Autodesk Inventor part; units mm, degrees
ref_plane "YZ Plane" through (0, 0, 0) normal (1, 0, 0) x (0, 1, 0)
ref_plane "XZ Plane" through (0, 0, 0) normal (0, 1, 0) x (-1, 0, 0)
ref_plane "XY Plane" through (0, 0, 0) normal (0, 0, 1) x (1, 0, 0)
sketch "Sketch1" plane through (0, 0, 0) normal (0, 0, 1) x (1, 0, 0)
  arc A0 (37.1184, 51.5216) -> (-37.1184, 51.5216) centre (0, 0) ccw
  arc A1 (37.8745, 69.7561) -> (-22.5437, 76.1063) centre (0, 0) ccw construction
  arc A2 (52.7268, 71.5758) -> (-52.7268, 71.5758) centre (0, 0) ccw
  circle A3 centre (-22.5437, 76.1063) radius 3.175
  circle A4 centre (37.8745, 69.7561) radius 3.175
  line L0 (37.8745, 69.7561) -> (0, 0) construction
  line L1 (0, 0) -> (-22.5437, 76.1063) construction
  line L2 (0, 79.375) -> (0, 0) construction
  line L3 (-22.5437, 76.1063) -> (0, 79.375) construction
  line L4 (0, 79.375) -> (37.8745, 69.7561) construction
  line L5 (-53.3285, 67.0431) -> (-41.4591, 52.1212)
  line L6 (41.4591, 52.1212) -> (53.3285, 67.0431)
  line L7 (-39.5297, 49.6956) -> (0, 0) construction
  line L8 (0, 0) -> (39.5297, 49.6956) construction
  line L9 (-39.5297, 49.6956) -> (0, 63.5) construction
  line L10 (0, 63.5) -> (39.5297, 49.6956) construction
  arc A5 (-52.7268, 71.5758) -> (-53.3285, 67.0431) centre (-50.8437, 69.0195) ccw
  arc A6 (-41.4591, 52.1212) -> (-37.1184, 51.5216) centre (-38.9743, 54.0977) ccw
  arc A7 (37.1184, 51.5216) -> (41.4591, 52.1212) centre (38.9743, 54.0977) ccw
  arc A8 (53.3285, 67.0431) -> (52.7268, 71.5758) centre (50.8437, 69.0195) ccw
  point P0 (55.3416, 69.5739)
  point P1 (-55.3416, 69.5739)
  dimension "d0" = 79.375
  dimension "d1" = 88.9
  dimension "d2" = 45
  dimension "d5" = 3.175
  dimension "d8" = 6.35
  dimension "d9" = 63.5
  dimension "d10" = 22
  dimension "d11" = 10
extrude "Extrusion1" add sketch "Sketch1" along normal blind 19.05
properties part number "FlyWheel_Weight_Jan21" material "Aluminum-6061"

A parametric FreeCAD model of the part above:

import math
import FreeCAD as App
import Part
import Sketcher
Q = App.Units.Quantity

doc = App.newDocument("Part")
params = doc.addObject("Spreadsheet::Sheet", "Params")
for row, (alias, value) in enumerate([
    ("sketch1_radius", "2.5 in"),
    ("sketch1_radius2", "3.5 in"),
    ("sketch1_diameter", "0.25 in"),
    ("pad1_length", "0.75 in"),
], start=1):
    params.set(f"A{row}", alias)
    params.set(f"B{row}", "=" + value)
    params.setAlias(f"B{row}", alias)

body = doc.addObject("PartDesign::Body", "Body")

sketch1 = body.newObject("Sketcher::SketchObject", "Sketch")
sketch1.AttachmentSupport = (doc.getObject("XY_Plane"), [""])
sketch1.MapMode = "FlatFace"
sketch1.addGeometry([
    Part.ArcOfCircle(Part.Circle(App.Vector(0, 0, 0), App.Vector(0, 0, 1), 63.500007), math.radians(54.229382), math.radians(125.770618)),
    Part.ArcOfCircle(Part.Circle(App.Vector(38.9743, 54.0977, 0), App.Vector(0, 0, 1), 3.175005), math.radians(-125.770114), math.radians(-38.500012)),
    Part.LineSegment(App.Vector(41.4591, 52.1212, 0), App.Vector(53.3285, 67.0431, 0)),
    Part.ArcOfCircle(Part.Circle(App.Vector(50.8437, 69.0195, 0), App.Vector(0, 0, 1), 3.174963), math.radians(-38.498599), math.radians(53.622759)),
    Part.ArcOfCircle(Part.Circle(App.Vector(0, 0, 0), App.Vector(0, 0, 1), 88.900003), math.radians(53.62253), math.radians(126.37747)),
    Part.ArcOfCircle(Part.Circle(App.Vector(-50.8437, 69.0195, 0), App.Vector(0, 0, 1), 3.175017), math.radians(126.377241), math.radians(218.498599)),
    Part.LineSegment(App.Vector(-53.3285, 67.0431, 0), App.Vector(-41.4591, 52.1212, 0)),
    Part.ArcOfCircle(Part.Circle(App.Vector(-38.9743, 54.0977, 0), App.Vector(0, 0, 1), 3.175025), math.radians(-141.499988), math.radians(-54.229886)),
    Part.Circle(App.Vector(37.8745, 69.7561, 0), App.Vector(0, 0, 1), 3.175),
    Part.Circle(App.Vector(-22.5437, 76.1063, 0), App.Vector(0, 0, 1), 3.175),
], False)
sketch1.addConstraint([
    Sketcher.Constraint("Tangent", 0, 1, 1, 1),
    Sketcher.Constraint("Tangent", 1, 2, 2, 1),
    Sketcher.Constraint("Tangent", 2, 2, 3, 1),
    Sketcher.Constraint("Tangent", 3, 2, 4, 1),
    Sketcher.Constraint("Tangent", 4, 2, 5, 1),
    Sketcher.Constraint("Tangent", 5, 2, 6, 1),
    Sketcher.Constraint("Tangent", 6, 2, 7, 1),
    Sketcher.Constraint("Tangent", 7, 2, 0, 2),
    Sketcher.Constraint("Coincident", 0, 3, -1, 1),
    Sketcher.Constraint("Coincident", 4, 3, -1, 1),
    Sketcher.Constraint("Equal", 1, 3),
    Sketcher.Constraint("Equal", 3, 5),
    Sketcher.Constraint("Equal", 5, 7),
    Sketcher.Constraint("Equal", 7, 8),
    Sketcher.Constraint("Equal", 8, 9),
    Sketcher.Constraint("Symmetric", 2, 2, 5, 2, -2),
    Sketcher.Constraint("Radius", 0, Q("2.5 in")),
    Sketcher.Constraint("Radius", 4, Q("3.5 in")),
    Sketcher.Constraint("Diameter", 8, Q("0.25 in")),
    Sketcher.Constraint("DistanceY", 8, 3, 9, 3, Q("0.25 in")),
    Sketcher.Constraint("Angle", 2, Q("51.5 deg")),
    Sketcher.Constraint("DistanceY", 3, 3, 8, 3, Q("0.029 in")),
    Sketcher.Constraint("DistanceX", 5, 2, 9, 3, Q("1.212 in")),
    Sketcher.Constraint("DistanceY", -1, 1, 3, 3, Q("2.7173 in")),
    Sketcher.Constraint("DistanceX", 8, 3, 3, 3, Q("0.5106 in")),
])
sketch1.setExpression("Constraints[16]", "Params.sketch1_radius")
sketch1.setExpression("Constraints[17]", "Params.sketch1_radius2")
sketch1.setExpression("Constraints[18]", "Params.sketch1_diameter")
pad1 = body.newObject("PartDesign::Pad", "Pad")
pad1.Profile = sketch1
pad1.setExpression("Length", "Params.pad1_length")

doc.recompute()
